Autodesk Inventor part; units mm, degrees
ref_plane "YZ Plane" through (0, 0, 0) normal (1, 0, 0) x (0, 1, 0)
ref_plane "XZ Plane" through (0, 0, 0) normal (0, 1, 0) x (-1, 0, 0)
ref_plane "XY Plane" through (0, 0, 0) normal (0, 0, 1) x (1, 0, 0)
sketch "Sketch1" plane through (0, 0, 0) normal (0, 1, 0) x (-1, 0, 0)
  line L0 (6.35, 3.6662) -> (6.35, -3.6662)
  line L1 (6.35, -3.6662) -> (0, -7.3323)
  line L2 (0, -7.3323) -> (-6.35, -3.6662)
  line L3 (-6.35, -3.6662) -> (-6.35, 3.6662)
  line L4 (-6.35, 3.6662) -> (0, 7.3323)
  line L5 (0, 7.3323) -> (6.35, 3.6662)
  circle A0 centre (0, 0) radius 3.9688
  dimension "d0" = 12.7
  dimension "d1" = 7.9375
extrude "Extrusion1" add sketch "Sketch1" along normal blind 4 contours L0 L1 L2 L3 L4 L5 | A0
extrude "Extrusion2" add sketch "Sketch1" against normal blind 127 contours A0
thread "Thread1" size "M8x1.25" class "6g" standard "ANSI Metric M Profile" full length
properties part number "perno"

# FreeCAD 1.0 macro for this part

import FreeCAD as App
import Part
import Sketcher

V = App.Vector
Q = App.Units.Quantity


def add_polygon(sketch, points):
    """Adds a closed chain of lines whose ends are joined by coincident constraints."""
    first, n = sketch.GeometryCount, len(points)
    for a, b in zip(points, points[1:] + points[:1]):
        sketch.addGeometry(Part.LineSegment(App.Vector(*a, 0), App.Vector(*b, 0)), False)
    for i in range(n):
        sketch.addConstraint(Sketcher.Constraint("Coincident", first + i, 2, first + (i + 1) % n, 1))

doc = App.newDocument("Part")
body = doc.addObject("PartDesign::Body", "Body")

sketch1 = doc.addObject("Sketcher::SketchObject", "Sketch")
body.addObject(sketch1)
sketch1.AttachmentSupport = (doc.XZ_Plane, [""])
sketch1.MapMode = "FlatFace"
add_polygon(sketch1, [(-6.35, -3.6662), (-6.35, 3.6662), (0, 7.3323), (6.35, 3.6662), (6.35, -3.6662), (0, -7.3323)])
sketch1.addConstraint([
    Sketcher.Constraint("Vertical", 0),
    Sketcher.Constraint("Vertical", 3),
    Sketcher.Constraint("Symmetric", 0, 2, 3, 2, -1, 1),
    Sketcher.Constraint("Symmetric", 1, 2, 4, 2, -1, 1),
    Sketcher.Constraint("PointOnObject", 1, 2, -2),
    Sketcher.Constraint("Parallel", 2, 5),
    Sketcher.Constraint("Horizontal", 0, 2, 2, 2),
    Sketcher.Constraint("DistanceX", 0, 2, 2, 2, Q("0.5 in")),
    Sketcher.Constraint("Angle", 1, Q("29.9995 deg")),
    Sketcher.Constraint("DistanceY", 3, 2, 1, 2, Q("0.433 in")),
])
pad1 = doc.addObject("PartDesign::Pad", "Pad")
body.addObject(pad1)
pad1.Profile = sketch1
pad1.Length = 4
pad1.Reversed = True

sketch2 = doc.addObject("Sketcher::SketchObject", "Sketch001")
body.addObject(sketch2)
sketch2.AttachmentSupport = (doc.XZ_Plane, [""])
sketch2.MapMode = "FlatFace"
sketch2.addGeometry(Part.Circle(V(0, 0, 0), V(0, 0, 1), 3.9688), False)
sketch2.addConstraint([
    Sketcher.Constraint("Coincident", 0, 3, -1, 1),
    Sketcher.Constraint("Diameter", 0, Q("0.3125 in")),
])
pad2 = doc.addObject("PartDesign::Pad", "Pad001")
body.addObject(pad2)
pad2.Profile = sketch2
pad2.Length = Q("5 in")

doc.recompute()
